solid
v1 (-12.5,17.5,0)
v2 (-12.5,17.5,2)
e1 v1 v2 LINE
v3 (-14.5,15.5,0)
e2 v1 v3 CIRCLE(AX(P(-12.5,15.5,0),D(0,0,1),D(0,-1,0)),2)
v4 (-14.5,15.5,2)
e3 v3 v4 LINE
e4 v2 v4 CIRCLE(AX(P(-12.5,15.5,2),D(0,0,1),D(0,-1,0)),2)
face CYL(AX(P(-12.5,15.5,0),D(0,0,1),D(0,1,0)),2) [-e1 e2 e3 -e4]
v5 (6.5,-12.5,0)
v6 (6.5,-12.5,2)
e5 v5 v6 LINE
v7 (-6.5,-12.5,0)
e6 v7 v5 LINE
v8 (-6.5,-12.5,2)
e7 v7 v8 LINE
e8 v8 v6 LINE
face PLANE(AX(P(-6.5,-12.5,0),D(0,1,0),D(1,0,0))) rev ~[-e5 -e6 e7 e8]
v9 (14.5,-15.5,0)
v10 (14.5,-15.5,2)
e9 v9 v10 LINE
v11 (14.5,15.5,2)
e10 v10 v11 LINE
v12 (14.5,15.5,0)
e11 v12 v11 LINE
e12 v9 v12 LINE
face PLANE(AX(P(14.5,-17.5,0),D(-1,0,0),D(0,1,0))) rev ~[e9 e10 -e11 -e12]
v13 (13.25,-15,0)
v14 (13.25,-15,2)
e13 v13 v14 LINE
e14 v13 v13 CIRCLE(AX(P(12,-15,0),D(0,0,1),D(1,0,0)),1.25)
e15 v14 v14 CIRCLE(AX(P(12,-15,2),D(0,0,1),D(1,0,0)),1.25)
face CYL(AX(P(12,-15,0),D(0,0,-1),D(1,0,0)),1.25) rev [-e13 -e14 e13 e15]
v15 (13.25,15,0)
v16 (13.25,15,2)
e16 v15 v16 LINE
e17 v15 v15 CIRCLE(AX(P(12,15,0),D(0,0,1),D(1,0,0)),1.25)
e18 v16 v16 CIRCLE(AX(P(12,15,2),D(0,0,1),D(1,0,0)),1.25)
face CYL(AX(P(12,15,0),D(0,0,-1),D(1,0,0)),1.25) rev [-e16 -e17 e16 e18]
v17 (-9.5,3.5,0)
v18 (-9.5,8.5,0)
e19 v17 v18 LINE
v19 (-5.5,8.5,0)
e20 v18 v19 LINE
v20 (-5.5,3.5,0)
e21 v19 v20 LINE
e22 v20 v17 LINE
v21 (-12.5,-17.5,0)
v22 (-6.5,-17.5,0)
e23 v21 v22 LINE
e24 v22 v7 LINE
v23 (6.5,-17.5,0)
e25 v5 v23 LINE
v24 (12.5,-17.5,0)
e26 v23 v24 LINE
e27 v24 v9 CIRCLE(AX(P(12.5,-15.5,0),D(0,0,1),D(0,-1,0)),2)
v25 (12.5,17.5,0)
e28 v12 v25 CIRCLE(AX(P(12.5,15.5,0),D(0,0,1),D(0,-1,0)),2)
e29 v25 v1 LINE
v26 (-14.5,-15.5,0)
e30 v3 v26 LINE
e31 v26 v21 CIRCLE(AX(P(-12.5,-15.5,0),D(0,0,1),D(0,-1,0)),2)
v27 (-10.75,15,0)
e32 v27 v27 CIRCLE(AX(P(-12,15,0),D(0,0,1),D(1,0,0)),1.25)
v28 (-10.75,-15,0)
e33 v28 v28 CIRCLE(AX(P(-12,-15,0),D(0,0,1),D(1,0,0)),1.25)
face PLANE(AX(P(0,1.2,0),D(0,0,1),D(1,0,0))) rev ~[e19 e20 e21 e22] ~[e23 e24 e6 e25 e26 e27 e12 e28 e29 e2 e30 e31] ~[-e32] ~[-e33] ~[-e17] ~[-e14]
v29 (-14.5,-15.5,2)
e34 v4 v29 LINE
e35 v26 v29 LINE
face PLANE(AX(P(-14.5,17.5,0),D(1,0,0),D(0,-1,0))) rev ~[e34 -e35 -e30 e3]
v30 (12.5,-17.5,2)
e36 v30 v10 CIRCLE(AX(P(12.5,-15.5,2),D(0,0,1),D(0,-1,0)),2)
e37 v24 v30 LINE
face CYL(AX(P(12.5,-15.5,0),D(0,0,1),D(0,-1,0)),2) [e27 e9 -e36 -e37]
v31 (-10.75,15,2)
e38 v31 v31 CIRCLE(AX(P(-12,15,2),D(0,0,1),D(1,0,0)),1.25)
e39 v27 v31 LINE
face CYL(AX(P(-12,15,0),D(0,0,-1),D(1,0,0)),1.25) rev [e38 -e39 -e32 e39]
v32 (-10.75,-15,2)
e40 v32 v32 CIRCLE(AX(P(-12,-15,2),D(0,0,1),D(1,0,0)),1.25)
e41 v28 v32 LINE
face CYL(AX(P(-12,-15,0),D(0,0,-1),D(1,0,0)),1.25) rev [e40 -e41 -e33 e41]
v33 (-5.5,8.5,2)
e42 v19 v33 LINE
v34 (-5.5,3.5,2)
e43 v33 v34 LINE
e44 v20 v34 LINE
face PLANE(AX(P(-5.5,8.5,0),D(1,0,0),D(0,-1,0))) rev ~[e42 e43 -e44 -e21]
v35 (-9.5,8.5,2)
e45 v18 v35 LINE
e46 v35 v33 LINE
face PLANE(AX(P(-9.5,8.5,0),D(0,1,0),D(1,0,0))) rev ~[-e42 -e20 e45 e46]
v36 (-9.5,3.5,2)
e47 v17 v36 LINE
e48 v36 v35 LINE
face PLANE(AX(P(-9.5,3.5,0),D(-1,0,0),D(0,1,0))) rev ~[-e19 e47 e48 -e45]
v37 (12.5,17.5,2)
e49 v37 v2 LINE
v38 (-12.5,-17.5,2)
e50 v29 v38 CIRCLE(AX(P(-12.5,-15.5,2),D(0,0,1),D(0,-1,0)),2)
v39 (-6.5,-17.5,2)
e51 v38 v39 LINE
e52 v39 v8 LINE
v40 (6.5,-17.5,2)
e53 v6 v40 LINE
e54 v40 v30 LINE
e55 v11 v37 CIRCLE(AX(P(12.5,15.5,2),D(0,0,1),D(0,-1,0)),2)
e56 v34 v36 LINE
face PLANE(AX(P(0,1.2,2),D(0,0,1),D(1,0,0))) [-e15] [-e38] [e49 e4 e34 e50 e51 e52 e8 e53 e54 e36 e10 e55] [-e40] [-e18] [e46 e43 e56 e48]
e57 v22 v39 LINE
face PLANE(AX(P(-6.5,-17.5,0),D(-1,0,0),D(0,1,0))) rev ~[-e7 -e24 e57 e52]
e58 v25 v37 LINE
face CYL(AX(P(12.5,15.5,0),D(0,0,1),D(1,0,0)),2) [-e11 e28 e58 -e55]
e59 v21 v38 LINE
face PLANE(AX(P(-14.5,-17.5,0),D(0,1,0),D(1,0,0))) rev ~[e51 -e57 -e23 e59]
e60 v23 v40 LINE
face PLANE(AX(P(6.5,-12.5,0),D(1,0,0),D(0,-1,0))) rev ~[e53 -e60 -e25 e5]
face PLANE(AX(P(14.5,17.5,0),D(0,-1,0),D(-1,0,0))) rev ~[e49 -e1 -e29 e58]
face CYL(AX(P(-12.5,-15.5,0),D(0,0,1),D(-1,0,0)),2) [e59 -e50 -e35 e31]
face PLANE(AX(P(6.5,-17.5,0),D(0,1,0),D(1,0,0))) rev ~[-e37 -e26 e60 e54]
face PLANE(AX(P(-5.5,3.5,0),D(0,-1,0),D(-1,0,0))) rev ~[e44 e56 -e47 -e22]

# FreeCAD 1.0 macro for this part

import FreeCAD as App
import Part
import Sketcher

V = App.Vector


def edges_at(feature, points):
    """Names of the edges that pass closest to the given points."""
    edges = feature.Shape.Edges
    near = lambda p: min(range(len(edges)), key=lambda i: edges[i].distToShape(Part.Vertex(*p))[0])
    return sorted({f"Edge{near(p) + 1}" for p in points})

doc = App.newDocument("Part")
body = doc.addObject("PartDesign::Body", "Body")

# Sketch on XY plane
sketch1 = body.newObject("Sketcher::SketchObject", "Sketch")
sketch1.AttachmentSupport = (doc.getObject("XY_Plane"), [""])
sketch1.MapMode = "FlatFace"
sketch1.addGeometry(Part.LineSegment(V(6.5, -12.5, 0), V(6.5, -17.5, 0)), False)
sketch1.addGeometry(Part.LineSegment(V(6.5, -17.5, 0), V(14.5, -17.5, 0)), False)
sketch1.addGeometry(Part.LineSegment(V(14.5, -17.5, 0), V(14.5, 17.5, 0)), False)
sketch1.addGeometry(Part.LineSegment(V(14.5, 17.5, 0), V(-14.5, 17.5, 0)), False)
sketch1.addGeometry(Part.LineSegment(V(-14.5, 17.5, 0), V(-14.5, -17.5, 0)), False)
sketch1.addGeometry(Part.LineSegment(V(-14.5, -17.5, 0), V(-6.5, -17.5, 0)), False)
sketch1.addGeometry(Part.LineSegment(V(-6.5, -17.5, 0), V(-6.5, -12.5, 0)), False)
sketch1.addGeometry(Part.LineSegment(V(-6.5, -12.5, 0), V(6.5, -12.5, 0)), False)
sketch1.addGeometry(Part.LineSegment(V(-9.5, 3.5, 0), V(-9.5, 8.5, 0)), False)
sketch1.addGeometry(Part.LineSegment(V(-9.5, 8.5, 0), V(-5.5, 8.5, 0)), False)
sketch1.addGeometry(Part.LineSegment(V(-5.5, 8.5, 0), V(-5.5, 3.5, 0)), False)
sketch1.addGeometry(Part.LineSegment(V(-5.5, 3.5, 0), V(-9.5, 3.5, 0)), False)
sketch1.addGeometry(Part.Circle(V(-12, -15, 0), V(0, 0, 1), 1.2), False)
sketch1.addGeometry(Part.Circle(V(12, -15, 0), V(0, 0, 1), 1.2), False)
sketch1.addGeometry(Part.Circle(V(-12, 15, 0), V(0, 0, 1), 1.2), False)
sketch1.addGeometry(Part.Circle(V(12, 15, 0), V(0, 0, 1), 1.2), False)
sketch1.addConstraint(Sketcher.Constraint("Coincident", 0, 2, 1, 1))
sketch1.addConstraint(Sketcher.Constraint("Coincident", 1, 2, 2, 1))
sketch1.addConstraint(Sketcher.Constraint("Coincident", 2, 2, 3, 1))
sketch1.addConstraint(Sketcher.Constraint("Coincident", 3, 2, 4, 1))
sketch1.addConstraint(Sketcher.Constraint("Coincident", 4, 2, 5, 1))
sketch1.addConstraint(Sketcher.Constraint("Coincident", 5, 2, 6, 1))
sketch1.addConstraint(Sketcher.Constraint("Coincident", 6, 2, 7, 1))
sketch1.addConstraint(Sketcher.Constraint("Coincident", 7, 2, 0, 1))
sketch1.addConstraint(Sketcher.Constraint("Coincident", 8, 2, 9, 1))
sketch1.addConstraint(Sketcher.Constraint("Coincident", 9, 2, 10, 1))
sketch1.addConstraint(Sketcher.Constraint("Coincident", 10, 2, 11, 1))
sketch1.addConstraint(Sketcher.Constraint("Coincident", 11, 2, 8, 1))
sketch1.addConstraint(Sketcher.Constraint("Vertical", 0))
sketch1.addConstraint(Sketcher.Constraint("Horizontal", 1))
sketch1.addConstraint(Sketcher.Constraint("Vertical", 2))
sketch1.addConstraint(Sketcher.Constraint("Horizontal", 3))
sketch1.addConstraint(Sketcher.Constraint("Vertical", 4))
sketch1.addConstraint(Sketcher.Constraint("Horizontal", 5))
sketch1.addConstraint(Sketcher.Constraint("Vertical", 6))
sketch1.addConstraint(Sketcher.Constraint("Horizontal", 7))
sketch1.addConstraint(Sketcher.Constraint("Vertical", 8))
sketch1.addConstraint(Sketcher.Constraint("Horizontal", 9))
sketch1.addConstraint(Sketcher.Constraint("Vertical", 10))
sketch1.addConstraint(Sketcher.Constraint("Horizontal", 11))
sketch1.addConstraint(Sketcher.Constraint("Equal", 12, 13))
sketch1.addConstraint(Sketcher.Constraint("Equal", 13, 14))
sketch1.addConstraint(Sketcher.Constraint("Equal", 14, 15))
sketch1.addConstraint(Sketcher.Constraint("Symmetric", 13, 3, 14, 3, -1, 1))
sketch1.addConstraint(Sketcher.Constraint("Symmetric", 12, 3, 15, 3, -1, 1))
sketch1.addConstraint(Sketcher.Constraint("Symmetric", 1, 2, 3, 2, -1, 1))
sketch1.addConstraint(Sketcher.Constraint("Symmetric", 12, 3, 13, 3, -2))
sketch1.addConstraint(Sketcher.Constraint("Symmetric", 0, 2, 5, 2, -2))
sketch1.addConstraint(Sketcher.Constraint("Equal", 6, 8))
sketch1.addConstraint(Sketcher.Constraint("Diameter", 12, 2.5))
sketch1.addConstraint(Sketcher.Constraint("DistanceX", 1, 1, 1, 2, 8.0))
sketch1.addConstraint(Sketcher.Constraint("DistanceX", 3, 2, 3, 1, 29.0))
sketch1.addConstraint(Sketcher.Constraint("DistanceX", 9, 1, 9, 2, 4.0))
sketch1.addConstraint(Sketcher.Constraint("DistanceY", 0, 2, 0, 1, 5.0))
sketch1.addConstraint(Sketcher.Constraint("DistanceY", 2, 1, 2, 2, 35.0))
sketch1.addConstraint(Sketcher.Constraint("DistanceX", 12, 3, -1, 1, 12.0))
sketch1.addConstraint(Sketcher.Constraint("DistanceY", 12, 3, -1, 1, 15.0))
sketch1.addConstraint(Sketcher.Constraint("DistanceX", 3, 2, 8, 2, 5.0))
sketch1.addConstraint(Sketcher.Constraint("DistanceY", 8, 2, 3, 2, 9.0))
pad1 = body.newObject("PartDesign::Pad", "Pad")
pad1.Profile = sketch1
pad1.Length = 2
doc.recompute()

fillet = body.newObject("PartDesign::Fillet", "Fillet")
fillet.Base = (pad1, edges_at(pad1, [
    (-14.5, 17.5, 1),
    (14.5, 17.5, 1),
    (14.5, -17.5, 1),
    (-14.5, -17.5, 1),
]))
fillet.Radius = 2

doc.recompute()
